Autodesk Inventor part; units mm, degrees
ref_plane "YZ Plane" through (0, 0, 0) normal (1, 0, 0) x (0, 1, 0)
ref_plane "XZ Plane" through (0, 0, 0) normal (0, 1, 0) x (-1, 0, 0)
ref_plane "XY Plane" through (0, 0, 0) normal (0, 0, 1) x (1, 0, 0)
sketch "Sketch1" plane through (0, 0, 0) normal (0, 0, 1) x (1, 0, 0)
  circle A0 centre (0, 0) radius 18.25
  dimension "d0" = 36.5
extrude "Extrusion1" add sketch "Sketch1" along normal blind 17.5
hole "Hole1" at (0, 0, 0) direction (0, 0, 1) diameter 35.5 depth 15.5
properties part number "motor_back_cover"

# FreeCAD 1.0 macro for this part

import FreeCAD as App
import Part
import Sketcher
Q = App.Units.Quantity

doc = App.newDocument("Part")
params = doc.addObject("Spreadsheet::Sheet", "Params")
for row, (alias, value) in enumerate([
    ("sketch1_diameter", "36.5 mm"),
    ("pad1_length", "17.5 mm"),
    ("sketch2_diameter", "35.5 mm"),
    ("hole_diameter", "35.5 mm"),
    ("hole_depth", "15.5 mm"),
], start=1):
    params.set(f"A{row}", alias)
    params.set(f"B{row}", "=" + value)
    params.setAlias(f"B{row}", alias)

body = doc.addObject("PartDesign::Body", "Body")

# Sketch on XY plane
sketch1 = doc.addObject("Sketcher::SketchObject", "Sketch")
body.addObject(sketch1)
sketch1.AttachmentSupport = (doc.XY_Plane, [""])
sketch1.MapMode = "FlatFace"
sketch1.addGeometry(Part.Circle(App.Vector(0, 0, 0), App.Vector(0, 0, 1), 18), False)
sketch1.addConstraint([
    Sketcher.Constraint("Coincident", 0, 3, -1, 1),
    Sketcher.Constraint("Diameter", 0, Q("36.5 mm")),
])
sketch1.setExpression("Constraints[1]", "Params.sketch1_diameter")
pad1 = doc.addObject("PartDesign::Pad", "Pad")
body.addObject(pad1)
pad1.Profile = sketch1
pad1.setExpression("Length", "Params.pad1_length")

# Sketch on XY plane
sketch2 = doc.addObject("Sketcher::SketchObject", "Sketch001")
body.addObject(sketch2)
sketch2.AttachmentSupport = (doc.XY_Plane, [""])
sketch2.MapMode = "FlatFace"
sketch2.addGeometry(Part.Circle(App.Vector(0, 0, 0), App.Vector(0, 0, 1), 18), False)
sketch2.addConstraint([
    Sketcher.Constraint("Coincident", 0, 3, -1, 1),
    Sketcher.Constraint("Diameter", 0, Q("35.5 mm")),
])
sketch2.setExpression("Constraints[1]", "Params.sketch2_diameter")
doc.recompute()
hole = doc.addObject("PartDesign::Hole", "Hole")
body.addObject(hole)
hole.Profile = sketch2
hole.ThreadType = "None"
hole.setExpression("Diameter", "Params.hole_diameter")
hole.DepthType = "Dimension"
hole.setExpression("Depth", "Params.hole_depth")
hole.DrillPoint = "Flat"
hole.Reversed = True

doc.recompute()
